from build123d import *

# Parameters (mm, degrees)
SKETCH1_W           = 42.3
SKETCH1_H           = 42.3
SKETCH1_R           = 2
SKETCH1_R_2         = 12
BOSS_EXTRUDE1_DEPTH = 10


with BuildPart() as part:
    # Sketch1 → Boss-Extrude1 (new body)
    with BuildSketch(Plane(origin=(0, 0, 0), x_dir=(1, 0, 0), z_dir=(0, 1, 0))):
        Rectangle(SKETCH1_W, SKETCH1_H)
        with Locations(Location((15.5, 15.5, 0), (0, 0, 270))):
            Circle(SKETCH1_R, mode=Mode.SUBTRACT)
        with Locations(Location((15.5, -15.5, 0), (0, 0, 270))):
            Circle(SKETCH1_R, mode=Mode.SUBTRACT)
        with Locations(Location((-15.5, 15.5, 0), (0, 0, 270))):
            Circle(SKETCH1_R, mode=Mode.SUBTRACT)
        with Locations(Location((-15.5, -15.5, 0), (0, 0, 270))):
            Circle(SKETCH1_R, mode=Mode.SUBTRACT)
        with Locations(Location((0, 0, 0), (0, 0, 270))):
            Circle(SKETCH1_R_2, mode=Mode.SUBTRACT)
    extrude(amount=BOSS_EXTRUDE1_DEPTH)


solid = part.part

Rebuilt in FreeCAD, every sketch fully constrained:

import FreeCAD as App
import Part
import Sketcher
from FreeCAD import Vector
Q = App.Units.Quantity

doc = App.newDocument("Part")
body = doc.addObject("PartDesign::Body", "Body")

sketch1 = body.newObject("Sketcher::SketchObject", "Sketch")
sketch1.AttachmentSupport = (doc.getObject("XZ_Plane"), [""])
sketch1.MapMode = "FlatFace"
sketch1.addGeometry([
    Part.LineSegment(Vector(-21.1, -21.1, 0), Vector(-21.1, 21.1, 0)),
    Part.LineSegment(Vector(-21.1, 21.1, 0), Vector(21.1, 21.1, 0)),
    Part.LineSegment(Vector(21.1, 21.1, 0), Vector(21.1, -21.1, 0)),
    Part.LineSegment(Vector(21.1, -21.1, 0), Vector(-21.1, -21.1, 0)),
    Part.Circle(Vector(-15.5, 15.5, 0), Vector(0, 0, 1), 2),
    Part.Circle(Vector(15.5, 15.5, 0), Vector(0, 0, 1), 2),
    Part.Circle(Vector(-15.5, -15.5, 0), Vector(0, 0, 1), 2),
    Part.Circle(Vector(0, 0, 0), Vector(0, 0, 1), 12),
    Part.Circle(Vector(15.5, -15.5, 0), Vector(0, 0, 1), 2),
], False)
sketch1.addConstraint([
    Sketcher.Constraint("Coincident", 0, 2, 1, 1),
    Sketcher.Constraint("Coincident", 1, 2, 2, 1),
    Sketcher.Constraint("Coincident", 2, 2, 3, 1),
    Sketcher.Constraint("Coincident", 3, 2, 0, 1),
    Sketcher.Constraint("Vertical", 0),
    Sketcher.Constraint("Horizontal", 1),
    Sketcher.Constraint("Vertical", 2),
    Sketcher.Constraint("Horizontal", 3),
    Sketcher.Constraint("Coincident", 7, 3, -1, 1),
    Sketcher.Constraint("Equal", 4, 5),
    Sketcher.Constraint("Equal", 5, 6),
    Sketcher.Constraint("Equal", 6, 8),
    Sketcher.Constraint("Symmetric", 5, 3, 6, 3, -1, 1),
    Sketcher.Constraint("Symmetric", 4, 3, 8, 3, -1, 1),
    Sketcher.Constraint("Symmetric", 0, 2, 2, 2, -1, 1),
    Sketcher.Constraint("Symmetric", 4, 3, 5, 3, -2),
    Sketcher.Constraint("Equal", 3, 0),
    Sketcher.Constraint("Diameter", 4, Q("4 mm")),
    Sketcher.Constraint("Diameter", 7, Q("24 mm")),
    Sketcher.Constraint("DistanceX", 1, 1, 1, 2, Q("42.3 mm")),
    Sketcher.Constraint("DistanceX", 4, 3, 5, 3, Q("31 mm")),
    Sketcher.Constraint("DistanceY", 6, 3, 4, 3, Q("31 mm")),
])
pad1 = body.newObject("PartDesign::Pad", "Pad")
pad1.Profile = sketch1
pad1.Length = 10
pad1.Reversed = True

doc.recompute()
